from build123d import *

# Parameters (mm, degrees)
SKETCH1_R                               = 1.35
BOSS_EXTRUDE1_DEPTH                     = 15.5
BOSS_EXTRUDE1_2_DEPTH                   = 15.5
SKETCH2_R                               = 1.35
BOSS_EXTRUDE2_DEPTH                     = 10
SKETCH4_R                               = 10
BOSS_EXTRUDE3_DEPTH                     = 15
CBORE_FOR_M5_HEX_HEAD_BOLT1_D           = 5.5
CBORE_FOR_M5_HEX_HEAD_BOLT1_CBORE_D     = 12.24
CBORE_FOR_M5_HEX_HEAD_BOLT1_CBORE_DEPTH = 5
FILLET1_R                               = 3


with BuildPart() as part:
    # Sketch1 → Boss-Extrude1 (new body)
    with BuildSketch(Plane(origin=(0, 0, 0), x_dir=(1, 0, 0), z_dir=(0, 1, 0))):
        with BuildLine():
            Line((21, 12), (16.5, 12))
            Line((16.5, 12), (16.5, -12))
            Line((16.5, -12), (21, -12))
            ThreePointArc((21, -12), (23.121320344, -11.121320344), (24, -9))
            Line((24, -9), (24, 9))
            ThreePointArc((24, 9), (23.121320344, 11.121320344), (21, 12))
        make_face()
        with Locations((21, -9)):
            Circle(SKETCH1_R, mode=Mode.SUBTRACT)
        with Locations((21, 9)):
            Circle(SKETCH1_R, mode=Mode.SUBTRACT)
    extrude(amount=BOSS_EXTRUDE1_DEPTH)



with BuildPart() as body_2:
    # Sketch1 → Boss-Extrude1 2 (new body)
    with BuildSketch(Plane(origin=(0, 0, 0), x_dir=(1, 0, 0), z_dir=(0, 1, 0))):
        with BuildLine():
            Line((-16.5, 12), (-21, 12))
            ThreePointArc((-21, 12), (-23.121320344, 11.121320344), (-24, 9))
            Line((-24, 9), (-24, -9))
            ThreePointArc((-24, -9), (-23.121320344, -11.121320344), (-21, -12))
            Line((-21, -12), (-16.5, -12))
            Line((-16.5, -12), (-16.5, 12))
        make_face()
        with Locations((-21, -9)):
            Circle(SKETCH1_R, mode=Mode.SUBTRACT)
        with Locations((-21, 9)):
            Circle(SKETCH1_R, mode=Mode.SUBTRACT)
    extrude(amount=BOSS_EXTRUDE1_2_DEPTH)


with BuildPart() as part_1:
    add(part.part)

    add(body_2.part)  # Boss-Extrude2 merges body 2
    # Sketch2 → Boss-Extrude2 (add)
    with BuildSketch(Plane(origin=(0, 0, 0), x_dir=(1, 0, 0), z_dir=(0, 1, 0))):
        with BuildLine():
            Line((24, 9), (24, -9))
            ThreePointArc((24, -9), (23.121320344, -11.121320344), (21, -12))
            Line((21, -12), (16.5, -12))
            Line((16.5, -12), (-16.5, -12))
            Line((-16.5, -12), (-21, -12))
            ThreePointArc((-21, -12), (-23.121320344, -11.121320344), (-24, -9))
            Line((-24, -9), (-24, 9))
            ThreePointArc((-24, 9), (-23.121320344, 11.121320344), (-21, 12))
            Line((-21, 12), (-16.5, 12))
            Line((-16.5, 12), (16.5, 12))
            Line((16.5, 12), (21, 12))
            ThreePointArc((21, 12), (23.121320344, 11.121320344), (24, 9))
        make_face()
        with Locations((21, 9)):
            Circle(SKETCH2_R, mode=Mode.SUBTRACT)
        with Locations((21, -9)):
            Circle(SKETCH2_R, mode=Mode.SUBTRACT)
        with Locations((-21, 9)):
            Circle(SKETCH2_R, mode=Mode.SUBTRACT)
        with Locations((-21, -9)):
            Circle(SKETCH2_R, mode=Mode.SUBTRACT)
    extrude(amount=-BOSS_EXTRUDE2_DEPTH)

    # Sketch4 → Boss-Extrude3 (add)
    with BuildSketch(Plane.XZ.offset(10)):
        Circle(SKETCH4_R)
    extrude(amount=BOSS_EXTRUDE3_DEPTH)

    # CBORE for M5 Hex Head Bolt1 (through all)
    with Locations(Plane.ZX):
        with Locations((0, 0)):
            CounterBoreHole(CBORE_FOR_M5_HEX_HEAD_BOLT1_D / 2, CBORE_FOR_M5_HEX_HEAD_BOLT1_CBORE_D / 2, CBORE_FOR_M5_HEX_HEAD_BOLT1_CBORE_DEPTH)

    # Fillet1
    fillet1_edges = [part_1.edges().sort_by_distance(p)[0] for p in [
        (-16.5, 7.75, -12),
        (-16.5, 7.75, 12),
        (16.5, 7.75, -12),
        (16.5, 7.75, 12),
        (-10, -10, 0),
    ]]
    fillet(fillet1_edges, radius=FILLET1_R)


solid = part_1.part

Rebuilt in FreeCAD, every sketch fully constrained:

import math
import FreeCAD as App
import Part
import Sketcher
Q = App.Units.Quantity


def edges_at(feature, points):
    """Names of the edges that pass closest to the given points."""
    edges = feature.Shape.Edges
    near = lambda p: min(range(len(edges)), key=lambda i: edges[i].distToShape(Part.Vertex(*p))[0])
    return sorted({f"Edge{near(p) + 1}" for p in points})

doc = App.newDocument("Part")
body = doc.addObject("PartDesign::Body", "Body")

# Sketch on XZ plane
sketch1 = doc.addObject("Sketcher::SketchObject", "Sketch")
body.addObject(sketch1)
sketch1.AttachmentSupport = (doc.XZ_Plane, [""])
sketch1.MapMode = "FlatFace"
sketch1.addGeometry([
    Part.LineSegment(App.Vector(21, -12, 0), App.Vector(16.5, -12, 0)),  # 0
    Part.LineSegment(App.Vector(16.5, -12, 0), App.Vector(16.5, 12, 0)),  # 1
    Part.LineSegment(App.Vector(16.5, 12, 0), App.Vector(21, 12, 0)),  # 2
    Part.ArcOfCircle(Part.Circle(App.Vector(21, 9, 0), App.Vector(0, 0, 1), 3), math.radians(0), math.radians(90)),  # 3
    Part.LineSegment(App.Vector(24, 9, 0), App.Vector(24, -9, 0)),  # 4
    Part.ArcOfCircle(Part.Circle(App.Vector(21, -9, 0), App.Vector(0, 0, 1), 3), math.radians(-90), math.radians(0)),  # 5
    Part.Circle(App.Vector(21, 9, 0), App.Vector(0, 0, 1), 1.4),  # 6
    Part.Circle(App.Vector(21, -9, 0), App.Vector(0, 0, 1), 1.4),  # 7
], False)
sketch1.addConstraint([
    Sketcher.Constraint("Coincident", 0, 2, 1, 1),
    Sketcher.Constraint("Coincident", 1, 2, 2, 1),
    Sketcher.Constraint("Tangent", 2, 2, 3, 2),
    Sketcher.Constraint("Tangent", 3, 1, 4, 1),
    Sketcher.Constraint("Tangent", 4, 2, 5, 2),
    Sketcher.Constraint("Tangent", 5, 1, 0, 1),
    Sketcher.Constraint("Horizontal", 0),
    Sketcher.Constraint("Vertical", 1),
    Sketcher.Constraint("Horizontal", 2),
    Sketcher.Constraint("Vertical", 4),
    Sketcher.Constraint("Coincident", 6, 3, 3, 3),
    Sketcher.Constraint("Coincident", 7, 3, 5, 3),
    Sketcher.Constraint("Equal", 3, 5),
    Sketcher.Constraint("Equal", 6, 7),
    Sketcher.Constraint("Radius", 3, Q("3 mm")),
    Sketcher.Constraint("Diameter", 6, Q("2.7 mm")),
    Sketcher.Constraint("DistanceY", 1, 1, 1, 2, Q("24 mm")),
    Sketcher.Constraint("DistanceX", 0, 2, 0, 1, Q("4.5 mm")),
    Sketcher.Constraint("DistanceX", -1, 1, 3, 3, Q("21 mm")),
    Sketcher.Constraint("DistanceY", -1, 1, 3, 3, Q("9 mm")),
])
pad1 = doc.addObject("PartDesign::Pad", "Pad")
body.addObject(pad1)
pad1.Profile = sketch1
pad1.Length = 15.5
pad1.Reversed = True
body2 = doc.addObject("PartDesign::Body", "Body001")

# Sketch on XZ plane
sketch2 = doc.addObject("Sketcher::SketchObject", "Sketch001")
body2.addObject(sketch2)
sketch2.AttachmentSupport = (doc.getObject("XZ_Plane001"), [""])
sketch2.MapMode = "FlatFace"
sketch2.addGeometry([
    Part.LineSegment(App.Vector(-16.5, -12, 0), App.Vector(-21, -12, 0)),  # 0
    Part.ArcOfCircle(Part.Circle(App.Vector(-21, -9, 0), App.Vector(0, 0, 1), 3), math.radians(180), math.radians(270)),  # 1
    Part.LineSegment(App.Vector(-24, -9, 0), App.Vector(-24, 9, 0)),  # 2
    Part.ArcOfCircle(Part.Circle(App.Vector(-21, 9, 0), App.Vector(0, 0, 1), 3), math.radians(90), math.radians(180)),  # 3
    Part.LineSegment(App.Vector(-21, 12, 0), App.Vector(-16.5, 12, 0)),  # 4
    Part.LineSegment(App.Vector(-16.5, 12, 0), App.Vector(-16.5, -12, 0)),  # 5
    Part.Circle(App.Vector(-21, 9, 0), App.Vector(0, 0, 1), 1.4),  # 6
    Part.Circle(App.Vector(-21, -9, 0), App.Vector(0, 0, 1), 1.4),  # 7
], False)
sketch2.addConstraint([
    Sketcher.Constraint("Tangent", 0, 2, 1, 2),
    Sketcher.Constraint("Tangent", 1, 1, 2, 1),
    Sketcher.Constraint("Tangent", 2, 2, 3, 2),
    Sketcher.Constraint("Tangent", 3, 1, 4, 1),
    Sketcher.Constraint("Coincident", 4, 2, 5, 1),
    Sketcher.Constraint("Coincident", 5, 2, 0, 1),
    Sketcher.Constraint("Horizontal", 0),
    Sketcher.Constraint("Vertical", 2),
    Sketcher.Constraint("Horizontal", 4),
    Sketcher.Constraint("Vertical", 5),
    Sketcher.Constraint("Coincident", 6, 3, 3, 3),
    Sketcher.Constraint("Coincident", 7, 3, 1, 3),
    Sketcher.Constraint("Equal", 1, 3),
    Sketcher.Constraint("Equal", 6, 7),
    Sketcher.Constraint("Radius", 1, Q("3 mm")),
    Sketcher.Constraint("Diameter", 6, Q("2.7 mm")),
    Sketcher.Constraint("DistanceY", 2, 1, 2, 2, Q("18 mm")),
    Sketcher.Constraint("DistanceX", 0, 2, 0, 1, Q("4.5 mm")),
    Sketcher.Constraint("DistanceX", 1, 3, -1, 1, Q("21 mm")),
    Sketcher.Constraint("DistanceY", 1, 3, -1, 1, Q("9 mm")),
])
pad2 = doc.addObject("PartDesign::Pad", "Pad001")
body2.addObject(pad2)
pad2.Profile = sketch2
pad2.Length = 15.5
pad2.Reversed = True
body.AllowCompound = True
doc.recompute()

boolean = doc.addObject("PartDesign::Boolean", "Boolean")
body.addObject(boolean)
boolean.Type = "Fuse"
boolean.addObjects([body2])

# Sketch on XZ plane
sketch3 = doc.addObject("Sketcher::SketchObject", "Sketch002")
body.addObject(sketch3)
sketch3.AttachmentSupport = (doc.XZ_Plane, [""])
sketch3.MapMode = "FlatFace"
sketch3.addGeometry([
    Part.LineSegment(App.Vector(24, 9, 0), App.Vector(24, -9, 0)),  # 0
    Part.ArcOfCircle(Part.Circle(App.Vector(21, -9, 0), App.Vector(0, 0, 1), 3), math.radians(-90), math.radians(0)),  # 1
    Part.LineSegment(App.Vector(21, -12, 0), App.Vector(-21, -12, 0)),  # 2
    Part.ArcOfCircle(Part.Circle(App.Vector(-21, -9, 0), App.Vector(0, 0, 1), 3), math.radians(180), math.radians(270)),  # 3
    Part.LineSegment(App.Vector(-24, -9, 0), App.Vector(-24, 9, 0)),  # 4
    Part.ArcOfCircle(Part.Circle(App.Vector(-21, 9, 0), App.Vector(0, 0, 1), 3), math.radians(90), math.radians(180)),  # 5
    Part.LineSegment(App.Vector(-21, 12, 0), App.Vector(21, 12, 0)),  # 6
    Part.ArcOfCircle(Part.Circle(App.Vector(21, 9, 0), App.Vector(0, 0, 1), 3), math.radians(0), math.radians(90)),  # 7
    Part.Circle(App.Vector(21, 9, 0), App.Vector(0, 0, 1), 1.4),  # 8
    Part.Circle(App.Vector(-21, 9, 0), App.Vector(0, 0, 1), 1.4),  # 9
    Part.Circle(App.Vector(21, -9, 0), App.Vector(0, 0, 1), 1.4),  # 10
    Part.Circle(App.Vector(-21, -9, 0), App.Vector(0, 0, 1), 1.4),  # 11
], False)
sketch3.addConstraint([
    Sketcher.Constraint("Tangent", 0, 2, 1, 2),
    Sketcher.Constraint("Tangent", 1, 1, 2, 1),
    Sketcher.Constraint("Tangent", 2, 2, 3, 2),
    Sketcher.Constraint("Tangent", 3, 1, 4, 1),
    Sketcher.Constraint("Tangent", 4, 2, 5, 2),
    Sketcher.Constraint("Tangent", 5, 1, 6, 1),
    Sketcher.Constraint("Tangent", 6, 2, 7, 2),
    Sketcher.Constraint("Tangent", 7, 1, 0, 1),
    Sketcher.Constraint("Vertical", 0),
    Sketcher.Constraint("Horizontal", 2),
    Sketcher.Constraint("Vertical", 4),
    Sketcher.Constraint("Horizontal", 6),
    Sketcher.Constraint("Coincident", 8, 3, 7, 3),
    Sketcher.Constraint("Coincident", 9, 3, 5, 3),
    Sketcher.Constraint("Coincident", 10, 3, 1, 3),
    Sketcher.Constraint("Coincident", 11, 3, 3, 3),
    Sketcher.Constraint("Equal", 1, 3),
    Sketcher.Constraint("Equal", 3, 5),
    Sketcher.Constraint("Equal", 5, 7),
    Sketcher.Constraint("Equal", 8, 9),
    Sketcher.Constraint("Equal", 9, 10),
    Sketcher.Constraint("Equal", 10, 11),
    Sketcher.Constraint("Symmetric", 1, 3, 5, 3, -1, 1),
    Sketcher.Constraint("Radius", 1, Q("3 mm")),
    Sketcher.Constraint("Diameter", 8, Q("2.7 mm")),
    Sketcher.Constraint("DistanceX", 2, 2, 2, 1, Q("42 mm")),
    Sketcher.Constraint("DistanceY", 0, 2, 0, 1, Q("18 mm")),
])
pad3 = doc.addObject("PartDesign::Pad", "Pad002")
body.addObject(pad3)
pad3.Profile = sketch3
pad3.Length = 10

# Sketch on XZ plane
sketch4 = doc.addObject("Sketcher::SketchObject", "Sketch003")
body.addObject(sketch4)
sketch4.AttachmentSupport = (doc.XZ_Plane, [""])
sketch4.MapMode = "FlatFace"
sketch4.AttachmentOffset = App.Placement(App.Vector(0, 0, 10), App.Rotation())
sketch4.addGeometry(Part.Circle(App.Vector(0, 0, 0), App.Vector(0, 0, 1), 10), False)
sketch4.addConstraint([
    Sketcher.Constraint("Coincident", 0, 3, -1, 1),
    Sketcher.Constraint("Diameter", 0, Q("20 mm")),
])
pad4 = doc.addObject("PartDesign::Pad", "Pad003")
body.addObject(pad4)
pad4.Profile = sketch4
pad4.Length = 15

# Sketch on XZ plane
sketch5 = doc.addObject("Sketcher::SketchObject", "Sketch004")
body.addObject(sketch5)
sketch5.AttachmentSupport = (doc.XZ_Plane, [""])
sketch5.MapMode = "FlatFace"
sketch5.addGeometry(Part.Circle(App.Vector(0, 0, 0), App.Vector(0, 0, 1), 2.8), False)
sketch5.addConstraint([
    Sketcher.Constraint("Coincident", 0, 3, -1, 1),
    Sketcher.Constraint("Diameter", 0, Q("5.5 mm")),
])
doc.recompute()
hole = doc.addObject("PartDesign::Hole", "Hole")
body.addObject(hole)
hole.Profile = sketch5
hole.ThreadType = "None"
hole.Diameter = 5.5
hole.DepthType = "ThroughAll"
hole.HoleCutType = "Counterbore"
hole.HoleCutDiameter = 12.24
hole.HoleCutDepth = 5
hole.Reversed = True
doc.recompute()

fillet = doc.addObject("PartDesign::Fillet", "Fillet")
body.addObject(fillet)
fillet.Base = (hole, edges_at(hole, [
    (-16.5, 7.75, -12),
    (-16.5, 7.75, 12),
    (16.5, 7.75, -12),
    (16.5, 7.75, 12),
    (-10, -10, 0),
]))
fillet.Radius = 3

doc.recompute()
